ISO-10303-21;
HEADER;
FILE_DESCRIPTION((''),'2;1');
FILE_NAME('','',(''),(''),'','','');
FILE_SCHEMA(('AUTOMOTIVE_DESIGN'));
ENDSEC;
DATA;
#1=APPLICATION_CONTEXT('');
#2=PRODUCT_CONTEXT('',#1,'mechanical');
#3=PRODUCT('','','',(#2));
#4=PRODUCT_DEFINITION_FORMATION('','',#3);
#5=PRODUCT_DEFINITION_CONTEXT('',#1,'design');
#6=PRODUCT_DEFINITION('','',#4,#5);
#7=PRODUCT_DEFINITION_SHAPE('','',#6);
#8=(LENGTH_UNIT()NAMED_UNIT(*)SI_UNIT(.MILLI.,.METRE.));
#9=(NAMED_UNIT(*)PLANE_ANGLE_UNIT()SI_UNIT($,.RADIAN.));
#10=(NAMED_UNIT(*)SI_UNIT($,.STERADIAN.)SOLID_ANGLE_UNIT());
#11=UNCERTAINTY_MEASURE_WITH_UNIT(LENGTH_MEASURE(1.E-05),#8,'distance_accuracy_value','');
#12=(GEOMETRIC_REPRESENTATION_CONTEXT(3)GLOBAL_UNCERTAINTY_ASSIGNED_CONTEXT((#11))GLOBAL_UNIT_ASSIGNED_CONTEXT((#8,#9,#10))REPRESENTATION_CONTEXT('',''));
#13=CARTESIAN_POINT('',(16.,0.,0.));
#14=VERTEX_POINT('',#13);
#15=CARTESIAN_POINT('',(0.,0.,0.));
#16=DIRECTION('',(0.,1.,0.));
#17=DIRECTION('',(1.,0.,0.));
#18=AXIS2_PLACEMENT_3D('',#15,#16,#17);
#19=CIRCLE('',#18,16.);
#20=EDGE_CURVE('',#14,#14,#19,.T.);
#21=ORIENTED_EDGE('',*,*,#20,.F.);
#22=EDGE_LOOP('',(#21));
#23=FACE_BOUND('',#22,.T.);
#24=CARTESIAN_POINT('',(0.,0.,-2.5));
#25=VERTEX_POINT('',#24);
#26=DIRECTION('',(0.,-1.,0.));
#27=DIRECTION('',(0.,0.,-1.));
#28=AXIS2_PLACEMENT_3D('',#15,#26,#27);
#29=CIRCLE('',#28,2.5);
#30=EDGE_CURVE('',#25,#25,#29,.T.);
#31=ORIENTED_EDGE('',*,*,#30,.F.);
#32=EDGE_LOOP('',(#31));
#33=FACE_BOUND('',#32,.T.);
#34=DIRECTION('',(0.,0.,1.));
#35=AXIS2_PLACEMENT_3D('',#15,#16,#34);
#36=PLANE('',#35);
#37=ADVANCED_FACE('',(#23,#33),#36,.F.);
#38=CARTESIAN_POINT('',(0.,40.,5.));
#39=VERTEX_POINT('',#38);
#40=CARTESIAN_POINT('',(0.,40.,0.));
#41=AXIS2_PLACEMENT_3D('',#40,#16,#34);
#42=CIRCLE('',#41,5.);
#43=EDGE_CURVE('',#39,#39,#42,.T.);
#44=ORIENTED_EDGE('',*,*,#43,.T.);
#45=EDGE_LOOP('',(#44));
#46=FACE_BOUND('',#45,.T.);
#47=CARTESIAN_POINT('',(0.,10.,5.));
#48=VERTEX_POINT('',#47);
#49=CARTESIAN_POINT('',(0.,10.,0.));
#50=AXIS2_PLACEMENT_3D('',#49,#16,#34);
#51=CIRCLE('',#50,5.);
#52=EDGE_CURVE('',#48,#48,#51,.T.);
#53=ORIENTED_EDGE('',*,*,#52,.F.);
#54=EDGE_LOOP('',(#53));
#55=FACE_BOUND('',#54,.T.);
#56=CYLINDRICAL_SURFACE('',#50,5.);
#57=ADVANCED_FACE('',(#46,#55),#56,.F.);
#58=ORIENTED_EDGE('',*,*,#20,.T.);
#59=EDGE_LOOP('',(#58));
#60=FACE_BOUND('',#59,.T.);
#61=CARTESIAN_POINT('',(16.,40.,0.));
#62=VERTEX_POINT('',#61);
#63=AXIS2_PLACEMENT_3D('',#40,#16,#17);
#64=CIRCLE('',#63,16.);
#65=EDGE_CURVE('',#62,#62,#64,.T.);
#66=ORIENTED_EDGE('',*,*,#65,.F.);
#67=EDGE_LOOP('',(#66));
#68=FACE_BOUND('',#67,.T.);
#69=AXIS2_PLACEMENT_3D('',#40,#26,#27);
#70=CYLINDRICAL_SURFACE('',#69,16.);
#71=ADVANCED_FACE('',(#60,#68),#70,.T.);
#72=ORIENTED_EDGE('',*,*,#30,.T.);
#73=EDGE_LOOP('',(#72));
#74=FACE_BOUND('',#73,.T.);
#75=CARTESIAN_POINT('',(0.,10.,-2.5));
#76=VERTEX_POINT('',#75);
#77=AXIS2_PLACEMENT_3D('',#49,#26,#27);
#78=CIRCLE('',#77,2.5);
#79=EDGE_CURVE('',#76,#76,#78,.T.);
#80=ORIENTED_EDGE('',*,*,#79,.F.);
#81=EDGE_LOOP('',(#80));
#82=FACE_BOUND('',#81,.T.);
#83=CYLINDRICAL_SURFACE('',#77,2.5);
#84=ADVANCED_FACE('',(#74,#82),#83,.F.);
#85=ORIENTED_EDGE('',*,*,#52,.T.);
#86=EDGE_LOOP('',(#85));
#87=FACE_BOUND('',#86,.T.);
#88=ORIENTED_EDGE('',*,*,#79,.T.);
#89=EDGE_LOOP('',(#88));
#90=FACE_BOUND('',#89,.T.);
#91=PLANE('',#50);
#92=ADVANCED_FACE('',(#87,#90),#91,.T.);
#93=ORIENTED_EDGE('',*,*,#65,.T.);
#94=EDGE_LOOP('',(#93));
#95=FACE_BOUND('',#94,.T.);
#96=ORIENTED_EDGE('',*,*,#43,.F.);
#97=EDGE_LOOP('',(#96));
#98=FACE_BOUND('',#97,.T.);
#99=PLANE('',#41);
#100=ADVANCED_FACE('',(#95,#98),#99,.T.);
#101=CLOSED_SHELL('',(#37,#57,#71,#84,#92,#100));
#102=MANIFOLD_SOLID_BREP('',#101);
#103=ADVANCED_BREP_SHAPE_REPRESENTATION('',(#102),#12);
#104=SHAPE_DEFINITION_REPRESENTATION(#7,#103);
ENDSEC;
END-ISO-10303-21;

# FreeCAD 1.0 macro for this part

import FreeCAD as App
import Part
import Sketcher
from FreeCAD import Vector
Q = App.Units.Quantity

doc = App.newDocument("Part")
params = doc.addObject("Spreadsheet::Sheet", "Params")
for row, (alias, value) in enumerate([
    ("sketch1_diameter", "12 mm"),
    ("pad1_length", "40 mm"),
    ("sketch2_diameter", "10 mm"),
    ("pocket1_length", "30 mm"),
    ("sketch3_diameter", "5 mm"),
    ("pocket2_length", "10 mm"),
    ("sketch4_diameter", "32 mm"),
    ("sketch4_diameter2", "12 mm"),
    ("pad2_length", "40 mm"),
], start=1):
    params.set(f"A{row}", alias)
    params.set(f"B{row}", "=" + value)
    params.setAlias(f"B{row}", alias)

body = doc.addObject("PartDesign::Body", "Body")

# Sketch on XZ plane
sketch1 = body.newObject("Sketcher::SketchObject", "Sketch")
sketch1.AttachmentSupport = (doc.getObject("XZ_Plane"), [""])
sketch1.MapMode = "FlatFace"
sketch1.addGeometry(Part.Circle(Vector(0, 0, 0), Vector(0, 0, 1), 6), False)
sketch1.addConstraint(Sketcher.Constraint("Coincident", 0, 3, -1, 1))
sketch1.addConstraint(Sketcher.Constraint("Diameter", 0, Q("12 mm")))
sketch1.setExpression("Constraints[1]", "Params.sketch1_diameter")
pad1 = body.newObject("PartDesign::Pad", "Pad")
pad1.Profile = sketch1
pad1.setExpression("Length", "Params.pad1_length")
pad1.Reversed = True

# Sketch on XZ plane
sketch2 = body.newObject("Sketcher::SketchObject", "Sketch001")
sketch2.AttachmentSupport = (doc.getObject("XZ_Plane"), [""])
sketch2.MapMode = "FlatFace"
sketch2.AttachmentOffset = App.Placement(Vector(0, 0, -40), App.Rotation())
sketch2.addGeometry(Part.Circle(Vector(0, 0, 0), Vector(0, 0, 1), 5), False)
sketch2.addConstraint(Sketcher.Constraint("Coincident", 0, 3, -1, 1))
sketch2.addConstraint(Sketcher.Constraint("Diameter", 0, Q("10 mm")))
sketch2.setExpression("Constraints[1]", "Params.sketch2_diameter")
pocket1 = body.newObject("PartDesign::Pocket", "Pocket")
pocket1.Profile = sketch2
pocket1.setExpression("Length", "Params.pocket1_length")
pocket1.Reversed = True

# Sketch on XZ plane
sketch3 = body.newObject("Sketcher::SketchObject", "Sketch002")
sketch3.AttachmentSupport = (doc.getObject("XZ_Plane"), [""])
sketch3.MapMode = "FlatFace"
sketch3.addGeometry(Part.Circle(Vector(0, 0, 0), Vector(0, 0, 1), 2.5), False)
sketch3.addConstraint(Sketcher.Constraint("Coincident", 0, 3, -1, 1))
sketch3.addConstraint(Sketcher.Constraint("Diameter", 0, Q("5 mm")))
sketch3.setExpression("Constraints[1]", "Params.sketch3_diameter")
pocket2 = body.newObject("PartDesign::Pocket", "Pocket001")
pocket2.Profile = sketch3
pocket2.setExpression("Length", "Params.pocket2_length")

# Sketch on XZ plane
sketch4 = body.newObject("Sketcher::SketchObject", "Sketch003")
sketch4.AttachmentSupport = (doc.getObject("XZ_Plane"), [""])
sketch4.MapMode = "FlatFace"
sketch4.addGeometry(Part.Circle(Vector(0, 0, 0), Vector(0, 0, 1), 16), False)
sketch4.addGeometry(Part.Circle(Vector(0, 0, 0), Vector(0, 0, 1), 6), False)
sketch4.addConstraint(Sketcher.Constraint("Coincident", 0, 3, -1, 1))
sketch4.addConstraint(Sketcher.Constraint("Coincident", 1, 3, -1, 1))
sketch4.addConstraint(Sketcher.Constraint("Diameter", 0, Q("32 mm")))
sketch4.addConstraint(Sketcher.Constraint("Diameter", 1, Q("12 mm")))
sketch4.setExpression("Constraints[2]", "Params.sketch4_diameter")
sketch4.setExpression("Constraints[3]", "Params.sketch4_diameter2")
pad2 = body.newObject("PartDesign::Pad", "Pad001")
pad2.Profile = sketch4
pad2.setExpression("Length", "Params.pad2_length")
pad2.Reversed = True

doc.recompute()
